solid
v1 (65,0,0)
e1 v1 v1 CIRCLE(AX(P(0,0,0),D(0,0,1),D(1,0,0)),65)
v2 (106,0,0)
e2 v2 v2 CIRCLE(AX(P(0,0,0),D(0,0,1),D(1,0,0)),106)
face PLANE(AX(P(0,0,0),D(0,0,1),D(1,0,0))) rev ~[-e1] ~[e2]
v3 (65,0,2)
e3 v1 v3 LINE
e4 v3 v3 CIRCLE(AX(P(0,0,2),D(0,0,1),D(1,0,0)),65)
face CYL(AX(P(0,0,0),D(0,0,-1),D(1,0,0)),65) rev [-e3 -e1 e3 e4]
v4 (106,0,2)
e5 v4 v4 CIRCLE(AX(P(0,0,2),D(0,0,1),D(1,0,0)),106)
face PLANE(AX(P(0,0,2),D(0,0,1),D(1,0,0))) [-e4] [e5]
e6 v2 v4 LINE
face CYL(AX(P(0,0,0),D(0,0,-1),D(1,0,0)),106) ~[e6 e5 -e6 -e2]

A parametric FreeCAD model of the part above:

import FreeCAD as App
import Part
import Sketcher

V = App.Vector
Q = App.Units.Quantity

doc = App.newDocument("Part")
body = doc.addObject("PartDesign::Body", "Body")

sketch1 = body.newObject("Sketcher::SketchObject", "Sketch")
sketch1.AttachmentSupport = (doc.getObject("XY_Plane"), [""])
sketch1.MapMode = "FlatFace"
sketch1.addGeometry(Part.Circle(V(0, 0, 0), V(0, 0, 1), 106), False)
sketch1.addGeometry(Part.Circle(V(0, 0, 0), V(0, 0, 1), 65), False)
sketch1.addConstraint(Sketcher.Constraint("Coincident", 0, 3, -1, 1))
sketch1.addConstraint(Sketcher.Constraint("Coincident", 1, 3, -1, 1))
sketch1.addConstraint(Sketcher.Constraint("Diameter", 0, Q("212 mm")))
sketch1.addConstraint(Sketcher.Constraint("Diameter", 1, Q("130 mm")))
pad1 = body.newObject("PartDesign::Pad", "Pad")
pad1.Profile = sketch1
pad1.Length = 2

doc.recompute()
